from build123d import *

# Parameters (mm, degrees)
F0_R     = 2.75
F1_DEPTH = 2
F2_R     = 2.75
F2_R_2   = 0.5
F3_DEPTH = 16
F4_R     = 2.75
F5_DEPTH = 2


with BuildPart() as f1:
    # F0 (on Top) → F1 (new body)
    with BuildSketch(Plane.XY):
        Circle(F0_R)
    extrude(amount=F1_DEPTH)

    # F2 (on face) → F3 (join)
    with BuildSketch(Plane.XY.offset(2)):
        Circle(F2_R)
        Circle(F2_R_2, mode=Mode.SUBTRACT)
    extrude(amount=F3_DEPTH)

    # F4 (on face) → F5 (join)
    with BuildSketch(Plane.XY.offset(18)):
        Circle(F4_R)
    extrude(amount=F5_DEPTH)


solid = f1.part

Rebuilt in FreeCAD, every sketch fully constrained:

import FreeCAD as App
import Part
import Sketcher

doc = App.newDocument("Part")
body = doc.addObject("PartDesign::Body", "Body")

sketch1 = body.newObject("Sketcher::SketchObject", "Sketch")
sketch1.AttachmentSupport = (doc.getObject("XY_Plane"), [""])
sketch1.MapMode = "FlatFace"
sketch1.addGeometry(Part.Circle(App.Vector(0, 0, 0), App.Vector(0, 0, 1), 2.8), False)
sketch1.addConstraint([
    Sketcher.Constraint("Coincident", 0, 3, -1, 1),
    Sketcher.Constraint("Diameter", 0, 5.5),
])
pad1 = body.newObject("PartDesign::Pad", "Pad")
pad1.Profile = sketch1
pad1.Length = 2

sketch2 = body.newObject("Sketcher::SketchObject", "Sketch001")
sketch2.AttachmentSupport = (doc.getObject("XY_Plane"), [""])
sketch2.MapMode = "FlatFace"
sketch2.AttachmentOffset = App.Placement(App.Vector(0, 0, 2), App.Rotation())
sketch2.addGeometry([
    Part.Circle(App.Vector(0, 0, 0), App.Vector(0, 0, 1), 2.8),
    Part.Circle(App.Vector(0, 0, 0), App.Vector(0, 0, 1), 0.5),
], False)
sketch2.addConstraint([
    Sketcher.Constraint("Coincident", 0, 3, -1, 1),
    Sketcher.Constraint("Coincident", 1, 3, -1, 1),
    Sketcher.Constraint("Diameter", 1, 1.0),
    Sketcher.Constraint("Diameter", 0, 5.5),
])
pad2 = body.newObject("PartDesign::Pad", "Pad001")
pad2.Profile = sketch2
pad2.Length = 16

sketch3 = body.newObject("Sketcher::SketchObject", "Sketch002")
sketch3.AttachmentSupport = (doc.getObject("XY_Plane"), [""])
sketch3.MapMode = "FlatFace"
sketch3.AttachmentOffset = App.Placement(App.Vector(0, 0, 18), App.Rotation())
sketch3.addGeometry(Part.Circle(App.Vector(0, 0, 0), App.Vector(0, 0, 1), 2.8), False)
sketch3.addConstraint([
    Sketcher.Constraint("Coincident", 0, 3, -1, 1),
    Sketcher.Constraint("Diameter", 0, 5.5),
])
pad3 = body.newObject("PartDesign::Pad", "Pad002")
pad3.Profile = sketch3
pad3.Length = 2

doc.recompute()
